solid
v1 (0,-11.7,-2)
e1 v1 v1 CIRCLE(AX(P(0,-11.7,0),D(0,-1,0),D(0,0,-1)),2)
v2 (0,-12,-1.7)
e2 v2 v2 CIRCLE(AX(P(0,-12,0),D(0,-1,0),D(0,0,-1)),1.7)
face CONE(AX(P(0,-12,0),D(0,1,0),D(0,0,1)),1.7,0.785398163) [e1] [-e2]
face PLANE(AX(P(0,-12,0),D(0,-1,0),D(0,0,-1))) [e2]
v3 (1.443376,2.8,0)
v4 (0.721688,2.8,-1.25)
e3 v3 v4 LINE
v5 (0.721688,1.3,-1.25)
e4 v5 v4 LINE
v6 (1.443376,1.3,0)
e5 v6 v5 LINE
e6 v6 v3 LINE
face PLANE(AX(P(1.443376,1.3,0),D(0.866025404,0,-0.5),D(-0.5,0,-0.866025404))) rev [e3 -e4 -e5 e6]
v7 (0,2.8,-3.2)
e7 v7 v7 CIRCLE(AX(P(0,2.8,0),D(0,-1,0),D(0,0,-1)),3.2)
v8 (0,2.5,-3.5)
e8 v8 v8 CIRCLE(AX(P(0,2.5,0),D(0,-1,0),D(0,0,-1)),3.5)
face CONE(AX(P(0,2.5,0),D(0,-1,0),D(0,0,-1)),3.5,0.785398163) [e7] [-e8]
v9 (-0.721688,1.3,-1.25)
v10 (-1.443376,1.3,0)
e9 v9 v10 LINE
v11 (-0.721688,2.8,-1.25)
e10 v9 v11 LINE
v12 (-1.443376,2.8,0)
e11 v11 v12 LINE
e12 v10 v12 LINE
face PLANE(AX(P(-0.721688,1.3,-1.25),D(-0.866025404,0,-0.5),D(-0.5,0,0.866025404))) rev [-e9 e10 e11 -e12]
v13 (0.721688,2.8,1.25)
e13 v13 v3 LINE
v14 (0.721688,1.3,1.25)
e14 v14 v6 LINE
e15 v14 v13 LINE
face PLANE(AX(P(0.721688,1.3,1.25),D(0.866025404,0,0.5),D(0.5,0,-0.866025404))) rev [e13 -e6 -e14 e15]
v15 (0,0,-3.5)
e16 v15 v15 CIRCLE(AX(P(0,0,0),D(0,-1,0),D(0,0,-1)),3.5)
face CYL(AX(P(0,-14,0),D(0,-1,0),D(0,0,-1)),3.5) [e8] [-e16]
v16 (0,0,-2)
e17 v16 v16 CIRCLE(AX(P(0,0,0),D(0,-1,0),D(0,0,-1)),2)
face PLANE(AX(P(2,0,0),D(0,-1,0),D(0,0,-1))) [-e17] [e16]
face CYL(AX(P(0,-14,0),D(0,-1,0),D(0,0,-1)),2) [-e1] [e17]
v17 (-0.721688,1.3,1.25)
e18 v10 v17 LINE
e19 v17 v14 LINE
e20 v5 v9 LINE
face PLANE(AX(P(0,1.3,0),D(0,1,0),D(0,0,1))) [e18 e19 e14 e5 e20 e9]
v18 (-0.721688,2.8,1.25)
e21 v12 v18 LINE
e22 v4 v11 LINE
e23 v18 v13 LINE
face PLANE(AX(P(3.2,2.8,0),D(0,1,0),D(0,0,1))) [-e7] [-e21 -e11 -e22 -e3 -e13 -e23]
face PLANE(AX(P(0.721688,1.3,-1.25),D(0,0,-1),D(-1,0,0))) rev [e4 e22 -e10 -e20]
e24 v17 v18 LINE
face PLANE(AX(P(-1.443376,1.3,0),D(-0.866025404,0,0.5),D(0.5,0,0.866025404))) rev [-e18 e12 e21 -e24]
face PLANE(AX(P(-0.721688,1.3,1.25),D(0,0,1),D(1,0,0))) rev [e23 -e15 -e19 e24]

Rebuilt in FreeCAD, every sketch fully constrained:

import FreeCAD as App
import Part
import Sketcher
Q = App.Units.Quantity

doc = App.newDocument("Part")
body = doc.addObject("PartDesign::Body", "Body")

sketch1 = body.newObject("Sketcher::SketchObject", "Sketch")
sketch1.AttachmentSupport = (doc.getObject("XY_Plane"), [""])
sketch1.MapMode = "FlatFace"
sketch1.addGeometry([
    Part.LineSegment(App.Vector(0, -12, 0), App.Vector(1.7, -12, 0)),
    Part.LineSegment(App.Vector(1.7, -12, 0), App.Vector(2, -11.7, 0)),
    Part.LineSegment(App.Vector(2, -11.7, 0), App.Vector(2, 0, 0)),
    Part.LineSegment(App.Vector(2, 0, 0), App.Vector(3.5, 0, 0)),
    Part.LineSegment(App.Vector(3.5, 0, 0), App.Vector(3.5, 2.5, 0)),
    Part.LineSegment(App.Vector(3.5, 2.5, 0), App.Vector(3.2, 2.8, 0)),
    Part.LineSegment(App.Vector(3.2, 2.8, 0), App.Vector(0, 2.8, 0)),
    Part.LineSegment(App.Vector(0, 2.8, 0), App.Vector(0, -12, 0)),
], False)
sketch1.addConstraint([
    Sketcher.Constraint("Coincident", 0, 2, 1, 1),
    Sketcher.Constraint("Coincident", 1, 2, 2, 1),
    Sketcher.Constraint("Coincident", 2, 2, 3, 1),
    Sketcher.Constraint("Coincident", 3, 2, 4, 1),
    Sketcher.Constraint("Coincident", 4, 2, 5, 1),
    Sketcher.Constraint("Coincident", 5, 2, 6, 1),
    Sketcher.Constraint("Coincident", 6, 2, 7, 1),
    Sketcher.Constraint("Coincident", 7, 2, 0, 1),
    Sketcher.Constraint("Horizontal", 0),
    Sketcher.Constraint("Vertical", 2),
    Sketcher.Constraint("Horizontal", 3),
    Sketcher.Constraint("Vertical", 4),
    Sketcher.Constraint("Horizontal", 6),
    Sketcher.Constraint("Vertical", 7),
    Sketcher.Constraint("PointOnObject", 2, 2, -1),
    Sketcher.Constraint("PointOnObject", 6, 2, -2),
    Sketcher.Constraint("Perpendicular", 1, 5),
    Sketcher.Constraint("Equal", 1, 5),
    Sketcher.Constraint("Angle", 1, Q("45 deg")),
    Sketcher.Constraint("DistanceX", 0, 1, 0, 2, 1.7),
    Sketcher.Constraint("DistanceX", 3, 1, 3, 2, 1.5),
    Sketcher.Constraint("DistanceY", 2, 1, 2, 2, 11.7),
    Sketcher.Constraint("DistanceY", 4, 1, 4, 2, 2.5),
    Sketcher.Constraint("DistanceY", 7, 2, 7, 1, 14.8),
])
revolution = body.newObject("PartDesign::Revolution", "Revolution")
revolution.Profile = sketch1
revolution.ReferenceAxis = (sketch1, ["V_Axis"])
revolution.Angle = 360

sketch2 = body.newObject("Sketcher::SketchObject", "Sketch001")
sketch2.AttachmentSupport = (doc.getObject("XZ_Plane"), [""])
sketch2.MapMode = "FlatFace"
sketch2.AttachmentOffset = App.Placement(App.Vector(0, 0, -2.8), App.Rotation())
sketch2.addGeometry([
    Part.LineSegment(App.Vector(1.4, 0, 0), App.Vector(0.7, -1.2, 0)),
    Part.LineSegment(App.Vector(0.7, -1.2, 0), App.Vector(-0.7, -1.2, 0)),
    Part.LineSegment(App.Vector(-0.7, -1.2, 0), App.Vector(-1.4, 0, 0)),
    Part.LineSegment(App.Vector(-1.4, 0, 0), App.Vector(-0.7, 1.2, 0)),
    Part.LineSegment(App.Vector(-0.7, 1.2, 0), App.Vector(0.7, 1.2, 0)),
    Part.LineSegment(App.Vector(0.7, 1.2, 0), App.Vector(1.4, 0, 0)),
], False)
sketch2.addConstraint([
    Sketcher.Constraint("Coincident", 0, 2, 1, 1),
    Sketcher.Constraint("Coincident", 1, 2, 2, 1),
    Sketcher.Constraint("Coincident", 2, 2, 3, 1),
    Sketcher.Constraint("Coincident", 3, 2, 4, 1),
    Sketcher.Constraint("Coincident", 4, 2, 5, 1),
    Sketcher.Constraint("Coincident", 5, 2, 0, 1),
    Sketcher.Constraint("Horizontal", 1),
    Sketcher.Constraint("Horizontal", 4),
    Sketcher.Constraint("Symmetric", 0, 2, 3, 2, -1, 1),
    Sketcher.Constraint("Symmetric", 2, 2, 5, 2, -1, 1),
    Sketcher.Constraint("PointOnObject", 2, 2, -1),
    Sketcher.Constraint("Parallel", 2, 5),
    Sketcher.Constraint("Vertical", 1, 2, 3, 2),
    Sketcher.Constraint("Angle", 0, Q("-120 deg")),
    Sketcher.Constraint("DistanceY", 1, 2, 3, 2, 2.5),
    Sketcher.Constraint("DistanceX", 1, 2, 1, 1, 1.443376),
])
pocket1 = body.newObject("PartDesign::Pocket", "Pocket")
pocket1.Profile = sketch2
pocket1.Length = 1.5
pocket1.Reversed = True

doc.recompute()
